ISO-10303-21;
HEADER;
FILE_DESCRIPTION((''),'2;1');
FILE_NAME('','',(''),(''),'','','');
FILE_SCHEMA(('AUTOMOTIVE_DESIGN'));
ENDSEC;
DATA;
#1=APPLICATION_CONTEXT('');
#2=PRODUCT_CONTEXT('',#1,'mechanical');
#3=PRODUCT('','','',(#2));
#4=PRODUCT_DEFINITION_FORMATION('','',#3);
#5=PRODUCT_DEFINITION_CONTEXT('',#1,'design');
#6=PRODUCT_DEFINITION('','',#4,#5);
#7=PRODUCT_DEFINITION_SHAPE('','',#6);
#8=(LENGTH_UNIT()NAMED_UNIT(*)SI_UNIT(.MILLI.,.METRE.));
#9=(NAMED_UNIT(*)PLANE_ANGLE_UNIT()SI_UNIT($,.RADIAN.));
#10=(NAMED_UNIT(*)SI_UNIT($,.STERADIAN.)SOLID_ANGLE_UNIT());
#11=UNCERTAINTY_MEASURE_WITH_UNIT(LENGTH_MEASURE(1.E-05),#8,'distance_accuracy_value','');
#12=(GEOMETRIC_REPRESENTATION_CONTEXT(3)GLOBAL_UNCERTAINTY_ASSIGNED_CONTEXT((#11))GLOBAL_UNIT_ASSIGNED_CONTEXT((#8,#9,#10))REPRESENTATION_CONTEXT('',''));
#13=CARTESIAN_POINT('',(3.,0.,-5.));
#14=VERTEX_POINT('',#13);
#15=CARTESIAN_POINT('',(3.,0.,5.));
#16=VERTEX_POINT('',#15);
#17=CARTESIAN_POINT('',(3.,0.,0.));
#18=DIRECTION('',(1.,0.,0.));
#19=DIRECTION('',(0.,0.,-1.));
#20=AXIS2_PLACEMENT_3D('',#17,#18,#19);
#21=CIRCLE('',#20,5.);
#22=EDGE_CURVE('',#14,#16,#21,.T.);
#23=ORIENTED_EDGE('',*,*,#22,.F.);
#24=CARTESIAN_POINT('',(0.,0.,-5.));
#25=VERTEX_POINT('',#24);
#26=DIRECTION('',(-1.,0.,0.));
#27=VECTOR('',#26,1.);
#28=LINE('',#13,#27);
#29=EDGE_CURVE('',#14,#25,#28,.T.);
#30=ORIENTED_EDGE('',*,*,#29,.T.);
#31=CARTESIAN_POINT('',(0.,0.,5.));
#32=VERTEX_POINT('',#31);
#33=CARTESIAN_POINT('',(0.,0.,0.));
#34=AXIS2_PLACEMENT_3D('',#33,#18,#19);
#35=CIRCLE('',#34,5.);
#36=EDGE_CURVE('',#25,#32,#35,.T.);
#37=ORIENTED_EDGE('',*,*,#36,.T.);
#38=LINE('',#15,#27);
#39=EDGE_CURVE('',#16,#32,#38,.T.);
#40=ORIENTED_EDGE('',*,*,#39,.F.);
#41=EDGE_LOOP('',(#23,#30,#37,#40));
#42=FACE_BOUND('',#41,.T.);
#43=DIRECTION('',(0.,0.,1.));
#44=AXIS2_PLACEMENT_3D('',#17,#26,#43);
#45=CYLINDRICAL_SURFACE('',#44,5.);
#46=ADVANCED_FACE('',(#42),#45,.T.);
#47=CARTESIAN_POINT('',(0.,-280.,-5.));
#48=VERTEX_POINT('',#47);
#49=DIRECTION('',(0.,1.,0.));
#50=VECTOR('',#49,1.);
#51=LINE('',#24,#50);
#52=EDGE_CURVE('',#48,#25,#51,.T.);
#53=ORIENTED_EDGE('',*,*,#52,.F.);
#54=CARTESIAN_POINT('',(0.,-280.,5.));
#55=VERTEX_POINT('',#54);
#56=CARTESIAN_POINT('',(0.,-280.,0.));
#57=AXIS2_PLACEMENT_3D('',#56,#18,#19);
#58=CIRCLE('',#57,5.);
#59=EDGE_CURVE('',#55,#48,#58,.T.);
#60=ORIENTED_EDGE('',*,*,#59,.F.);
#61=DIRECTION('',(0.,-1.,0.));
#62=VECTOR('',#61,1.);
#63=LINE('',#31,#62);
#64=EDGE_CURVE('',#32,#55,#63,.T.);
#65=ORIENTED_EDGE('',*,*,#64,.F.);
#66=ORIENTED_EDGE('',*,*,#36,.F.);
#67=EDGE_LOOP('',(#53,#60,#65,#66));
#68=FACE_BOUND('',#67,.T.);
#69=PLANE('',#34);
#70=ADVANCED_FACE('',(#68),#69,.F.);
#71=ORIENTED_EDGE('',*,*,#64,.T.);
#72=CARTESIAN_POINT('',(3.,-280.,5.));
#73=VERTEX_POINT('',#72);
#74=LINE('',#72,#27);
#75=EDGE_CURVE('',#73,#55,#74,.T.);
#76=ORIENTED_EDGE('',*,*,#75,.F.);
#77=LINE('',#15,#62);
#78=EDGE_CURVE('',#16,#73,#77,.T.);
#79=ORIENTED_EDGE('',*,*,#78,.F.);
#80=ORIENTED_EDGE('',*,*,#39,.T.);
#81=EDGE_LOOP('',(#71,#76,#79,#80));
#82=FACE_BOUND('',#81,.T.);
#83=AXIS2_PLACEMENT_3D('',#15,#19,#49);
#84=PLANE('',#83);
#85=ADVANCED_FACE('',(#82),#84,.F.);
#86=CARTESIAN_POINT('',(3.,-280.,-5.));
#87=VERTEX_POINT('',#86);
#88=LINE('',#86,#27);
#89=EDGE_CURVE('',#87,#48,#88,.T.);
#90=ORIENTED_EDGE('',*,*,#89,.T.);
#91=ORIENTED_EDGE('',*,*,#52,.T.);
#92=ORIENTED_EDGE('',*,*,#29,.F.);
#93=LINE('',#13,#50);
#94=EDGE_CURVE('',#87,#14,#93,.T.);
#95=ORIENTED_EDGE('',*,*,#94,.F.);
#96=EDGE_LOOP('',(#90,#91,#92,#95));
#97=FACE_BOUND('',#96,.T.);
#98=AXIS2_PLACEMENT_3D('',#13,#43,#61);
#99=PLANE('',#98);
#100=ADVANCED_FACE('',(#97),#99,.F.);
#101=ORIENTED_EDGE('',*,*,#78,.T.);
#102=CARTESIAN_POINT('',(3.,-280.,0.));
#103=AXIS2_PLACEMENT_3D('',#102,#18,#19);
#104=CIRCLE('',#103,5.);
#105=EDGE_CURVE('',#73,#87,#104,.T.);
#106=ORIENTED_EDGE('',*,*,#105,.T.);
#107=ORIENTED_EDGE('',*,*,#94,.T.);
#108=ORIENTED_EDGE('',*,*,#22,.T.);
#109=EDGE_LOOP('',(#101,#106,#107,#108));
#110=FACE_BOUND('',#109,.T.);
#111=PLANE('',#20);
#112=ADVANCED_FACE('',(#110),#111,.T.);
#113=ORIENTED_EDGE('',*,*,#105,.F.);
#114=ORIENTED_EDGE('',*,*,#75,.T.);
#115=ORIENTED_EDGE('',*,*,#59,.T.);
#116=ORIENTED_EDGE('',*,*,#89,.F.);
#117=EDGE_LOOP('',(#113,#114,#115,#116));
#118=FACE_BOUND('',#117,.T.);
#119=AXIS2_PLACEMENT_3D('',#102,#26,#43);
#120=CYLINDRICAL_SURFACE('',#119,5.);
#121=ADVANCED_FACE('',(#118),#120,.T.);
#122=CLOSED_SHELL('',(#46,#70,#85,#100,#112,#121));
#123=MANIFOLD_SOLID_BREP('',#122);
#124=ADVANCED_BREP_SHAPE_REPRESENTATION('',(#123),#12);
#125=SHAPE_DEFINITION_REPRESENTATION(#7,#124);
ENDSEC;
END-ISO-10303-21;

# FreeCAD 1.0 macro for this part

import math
import FreeCAD as App
import Part
import Sketcher

V = App.Vector

doc = App.newDocument("Part")
body = doc.addObject("PartDesign::Body", "Body")

# Sketch on YZ plane
sketch1 = body.newObject("Sketcher::SketchObject", "Sketch")
sketch1.AttachmentSupport = (doc.getObject("YZ_Plane"), [""])
sketch1.MapMode = "FlatFace"
sketch1.addGeometry([
    Part.LineSegment(V(-280, -5, 0), V(0, -5, 0)),
    Part.ArcOfCircle(Part.Circle(V(0, 0, 0), V(0, 0, 1), 5), math.radians(-90), math.radians(90)),
    Part.LineSegment(V(0, 5, 0), V(-280, 5, 0)),
    Part.ArcOfCircle(Part.Circle(V(-280, 0, 0), V(0, 0, 1), 5), math.radians(90), math.radians(270)),
], False)
sketch1.addConstraint([
    Sketcher.Constraint("Tangent", 0, 2, 1, 1),
    Sketcher.Constraint("Tangent", 1, 2, 2, 1),
    Sketcher.Constraint("Tangent", 2, 2, 3, 1),
    Sketcher.Constraint("Tangent", 3, 2, 0, 1),
    Sketcher.Constraint("Horizontal", 0),
    Sketcher.Constraint("Horizontal", 2),
    Sketcher.Constraint("Coincident", 1, 3, -1, 1),
    Sketcher.Constraint("Radius", 1, 5.0),
    Sketcher.Constraint("DistanceX", 0, 1, 0, 2, 280.0),
])
pad1 = body.newObject("PartDesign::Pad", "Pad")
pad1.Profile = sketch1
pad1.Length = 3

doc.recompute()
